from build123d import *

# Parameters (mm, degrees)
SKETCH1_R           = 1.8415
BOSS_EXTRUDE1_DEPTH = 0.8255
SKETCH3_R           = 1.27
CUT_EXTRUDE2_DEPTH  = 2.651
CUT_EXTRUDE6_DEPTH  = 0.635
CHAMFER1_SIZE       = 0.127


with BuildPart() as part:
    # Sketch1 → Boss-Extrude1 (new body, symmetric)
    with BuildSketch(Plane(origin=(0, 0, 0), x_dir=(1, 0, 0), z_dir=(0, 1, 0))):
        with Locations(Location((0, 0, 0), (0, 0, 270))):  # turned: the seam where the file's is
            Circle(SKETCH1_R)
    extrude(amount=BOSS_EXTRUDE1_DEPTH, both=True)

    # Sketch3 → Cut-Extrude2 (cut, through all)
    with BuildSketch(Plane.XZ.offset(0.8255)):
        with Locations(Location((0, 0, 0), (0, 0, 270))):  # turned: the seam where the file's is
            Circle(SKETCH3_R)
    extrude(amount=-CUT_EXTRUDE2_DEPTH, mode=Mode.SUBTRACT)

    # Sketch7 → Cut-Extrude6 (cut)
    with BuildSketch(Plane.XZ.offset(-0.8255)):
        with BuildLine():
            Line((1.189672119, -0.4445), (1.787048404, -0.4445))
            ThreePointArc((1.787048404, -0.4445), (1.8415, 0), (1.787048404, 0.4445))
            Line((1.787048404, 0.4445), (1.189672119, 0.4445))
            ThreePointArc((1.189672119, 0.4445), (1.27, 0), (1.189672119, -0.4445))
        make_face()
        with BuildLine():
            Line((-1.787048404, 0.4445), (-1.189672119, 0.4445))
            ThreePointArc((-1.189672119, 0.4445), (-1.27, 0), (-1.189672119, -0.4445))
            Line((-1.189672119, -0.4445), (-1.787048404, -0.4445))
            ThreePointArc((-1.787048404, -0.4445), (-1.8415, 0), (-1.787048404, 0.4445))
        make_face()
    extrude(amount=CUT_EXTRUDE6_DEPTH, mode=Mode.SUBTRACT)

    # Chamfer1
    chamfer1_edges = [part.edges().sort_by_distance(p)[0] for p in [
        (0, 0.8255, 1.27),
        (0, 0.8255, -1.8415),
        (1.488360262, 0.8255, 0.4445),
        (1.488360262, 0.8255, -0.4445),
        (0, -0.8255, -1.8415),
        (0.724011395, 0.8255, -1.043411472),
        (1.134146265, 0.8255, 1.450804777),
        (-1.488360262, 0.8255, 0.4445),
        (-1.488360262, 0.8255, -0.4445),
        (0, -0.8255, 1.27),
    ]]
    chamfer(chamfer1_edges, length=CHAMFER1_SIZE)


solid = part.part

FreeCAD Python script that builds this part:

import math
import FreeCAD as App
import Part
import Sketcher

V = App.Vector
Q = App.Units.Quantity


def edges_at(feature, points):
    """Names of the edges that pass closest to the given points."""
    edges = feature.Shape.Edges
    near = lambda p: min(range(len(edges)), key=lambda i: edges[i].distToShape(Part.Vertex(*p))[0])
    return sorted({f"Edge{near(p) + 1}" for p in points})

doc = App.newDocument("Part")
params = doc.addObject("Spreadsheet::Sheet", "Params")
for row, (alias, value) in enumerate([
    ("sketch1_diameter", "0.145 in"),
    ("pad1_length", "0.065 in"),
    ("sketch2_diameter", "0.1 in"),
    ("sketch3_radius", "0.05 in"),
    ("pocket2_length", "0.025 in"),
    ("chamfer_size", "0.005 in"),
], start=1):
    params.set(f"A{row}", alias)
    params.set(f"B{row}", "=" + value)
    params.setAlias(f"B{row}", alias)

body = doc.addObject("PartDesign::Body", "Body")

# Sketch on XZ plane
sketch1 = doc.addObject("Sketcher::SketchObject", "Sketch")
body.addObject(sketch1)
sketch1.AttachmentSupport = (doc.XZ_Plane, [""])
sketch1.MapMode = "FlatFace"
sketch1.addGeometry(Part.Circle(V(0, 0, 0), V(0, 0, 1), 1.8415), False)
sketch1.addConstraint(Sketcher.Constraint("Coincident", 0, 3, -1, 1))
sketch1.addConstraint(Sketcher.Constraint("Diameter", 0, Q("0.145 in")))
sketch1.setExpression("Constraints[1]", "Params.sketch1_diameter")
pad1 = doc.addObject("PartDesign::Pad", "Pad")
body.addObject(pad1)
pad1.Profile = sketch1
pad1.setExpression("Length", "Params.pad1_length")
pad1.Midplane = True

# Sketch on XZ plane
sketch2 = doc.addObject("Sketcher::SketchObject", "Sketch001")
body.addObject(sketch2)
sketch2.AttachmentSupport = (doc.XZ_Plane, [""])
sketch2.MapMode = "FlatFace"
sketch2.AttachmentOffset = App.Placement(V(0, 0, 0.0325 * 25.4), App.Rotation())
sketch2.addGeometry(Part.Circle(V(0, 0, 0), V(0, 0, 1), 1.27), False)
sketch2.addConstraint(Sketcher.Constraint("Coincident", 0, 3, -1, 1))
sketch2.addConstraint(Sketcher.Constraint("Diameter", 0, Q("0.1 in")))
sketch2.setExpression("Constraints[1]", "Params.sketch2_diameter")
pocket1 = doc.addObject("PartDesign::Pocket", "Pocket")
body.addObject(pocket1)
pocket1.Profile = sketch2
pocket1.Type = "ThroughAll"

# Sketch on XZ plane
sketch3 = doc.addObject("Sketcher::SketchObject", "Sketch002")
body.addObject(sketch3)
sketch3.AttachmentSupport = (doc.XZ_Plane, [""])
sketch3.MapMode = "FlatFace"
sketch3.AttachmentOffset = App.Placement(V(0, 0, -0.0325 * 25.4), App.Rotation())
sketch3.addGeometry(Part.LineSegment(V(1.189672, -0.4445, 0), V(1.787048, -0.4445, 0)), False)
sketch3.addGeometry(Part.ArcOfCircle(Part.Circle(V(0, 0, 0), V(0, 0, 1), 1.8415), math.radians(-13.967963), math.radians(13.967963)), False)
sketch3.addGeometry(Part.LineSegment(V(1.787048, 0.4445, 0), V(1.189672, 0.4445, 0)), False)
sketch3.addGeometry(Part.ArcOfCircle(Part.Circle(V(0, 0, 0), V(0, 0, 1), 1.27), math.radians(-20.487315), math.radians(20.487315)), False)
sketch3.addGeometry(Part.LineSegment(V(-1.189672, 0.4445, 0), V(-1.787048, 0.4445, 0)), False)
sketch3.addGeometry(Part.ArcOfCircle(Part.Circle(V(0, 0, 0), V(0, 0, 1), 1.8415), math.radians(166.032037), math.radians(193.967963)), False)
sketch3.addGeometry(Part.LineSegment(V(-1.787048, -0.4445, 0), V(-1.189672, -0.4445, 0)), False)
sketch3.addGeometry(Part.ArcOfCircle(Part.Circle(V(0, 0, 0), V(0, 0, 1), 1.27), math.radians(159.512685), math.radians(200.487315)), False)
sketch3.addConstraint(Sketcher.Constraint("Coincident", 0, 2, 1, 1))
sketch3.addConstraint(Sketcher.Constraint("Coincident", 1, 2, 2, 1))
sketch3.addConstraint(Sketcher.Constraint("Coincident", 2, 2, 3, 2))
sketch3.addConstraint(Sketcher.Constraint("Coincident", 3, 1, 0, 1))
sketch3.addConstraint(Sketcher.Constraint("Coincident", 4, 2, 5, 1))
sketch3.addConstraint(Sketcher.Constraint("Coincident", 5, 2, 6, 1))
sketch3.addConstraint(Sketcher.Constraint("Coincident", 6, 2, 7, 2))
sketch3.addConstraint(Sketcher.Constraint("Coincident", 7, 1, 4, 1))
sketch3.addConstraint(Sketcher.Constraint("Horizontal", 0))
sketch3.addConstraint(Sketcher.Constraint("Horizontal", 2))
sketch3.addConstraint(Sketcher.Constraint("Horizontal", 4))
sketch3.addConstraint(Sketcher.Constraint("Horizontal", 6))
sketch3.addConstraint(Sketcher.Constraint("Coincident", 1, 3, -1, 1))
sketch3.addConstraint(Sketcher.Constraint("Coincident", 3, 3, -1, 1))
sketch3.addConstraint(Sketcher.Constraint("Coincident", 5, 3, -1, 1))
sketch3.addConstraint(Sketcher.Constraint("Coincident", 7, 3, -1, 1))
sketch3.addConstraint(Sketcher.Constraint("Equal", 1, 5))
sketch3.addConstraint(Sketcher.Constraint("Equal", 3, 7))
sketch3.addConstraint(Sketcher.Constraint("Horizontal", 2, 2, 4, 2))
sketch3.addConstraint(Sketcher.Constraint("Horizontal", 3, 1, 5, 2))
sketch3.addConstraint(Sketcher.Constraint("Vertical", 0, 2, 1, 2))
sketch3.addConstraint(Sketcher.Constraint("Radius", 3, Q("0.05 in")))
sketch3.addConstraint(Sketcher.Constraint("Radius", 1, Q("0.0725 in")))
sketch3.addConstraint(Sketcher.Constraint("DistanceY", 0, 2, 1, 2, Q("0.035 in")))
sketch3.setExpression("Constraints[21]", "Params.sketch3_radius")
pocket2 = doc.addObject("PartDesign::Pocket", "Pocket001")
body.addObject(pocket2)
pocket2.Profile = sketch3
pocket2.setExpression("Length", "Params.pocket2_length")
pocket2.Reversed = True
doc.recompute()

chamfer = doc.addObject("PartDesign::Chamfer", "Chamfer")
body.addObject(chamfer)
chamfer.Base = (pocket2, edges_at(pocket2, [
    (0, 0.826, 1.27),
    (0, 0.826, -1.841),
    (1.488, 0.826, 0.445),
    (1.488, 0.826, -0.445),
    (0, -0.826, -1.841),
    (0.724, 0.826, -1.043),
    (1.134, 0.826, 1.451),
    (-1.488, 0.826, 0.445),
    (-1.488, 0.826, -0.445),
    (0, -0.826, 1.27),
]))
chamfer.setExpression("Size", "Params.chamfer_size")

doc.recompute()
